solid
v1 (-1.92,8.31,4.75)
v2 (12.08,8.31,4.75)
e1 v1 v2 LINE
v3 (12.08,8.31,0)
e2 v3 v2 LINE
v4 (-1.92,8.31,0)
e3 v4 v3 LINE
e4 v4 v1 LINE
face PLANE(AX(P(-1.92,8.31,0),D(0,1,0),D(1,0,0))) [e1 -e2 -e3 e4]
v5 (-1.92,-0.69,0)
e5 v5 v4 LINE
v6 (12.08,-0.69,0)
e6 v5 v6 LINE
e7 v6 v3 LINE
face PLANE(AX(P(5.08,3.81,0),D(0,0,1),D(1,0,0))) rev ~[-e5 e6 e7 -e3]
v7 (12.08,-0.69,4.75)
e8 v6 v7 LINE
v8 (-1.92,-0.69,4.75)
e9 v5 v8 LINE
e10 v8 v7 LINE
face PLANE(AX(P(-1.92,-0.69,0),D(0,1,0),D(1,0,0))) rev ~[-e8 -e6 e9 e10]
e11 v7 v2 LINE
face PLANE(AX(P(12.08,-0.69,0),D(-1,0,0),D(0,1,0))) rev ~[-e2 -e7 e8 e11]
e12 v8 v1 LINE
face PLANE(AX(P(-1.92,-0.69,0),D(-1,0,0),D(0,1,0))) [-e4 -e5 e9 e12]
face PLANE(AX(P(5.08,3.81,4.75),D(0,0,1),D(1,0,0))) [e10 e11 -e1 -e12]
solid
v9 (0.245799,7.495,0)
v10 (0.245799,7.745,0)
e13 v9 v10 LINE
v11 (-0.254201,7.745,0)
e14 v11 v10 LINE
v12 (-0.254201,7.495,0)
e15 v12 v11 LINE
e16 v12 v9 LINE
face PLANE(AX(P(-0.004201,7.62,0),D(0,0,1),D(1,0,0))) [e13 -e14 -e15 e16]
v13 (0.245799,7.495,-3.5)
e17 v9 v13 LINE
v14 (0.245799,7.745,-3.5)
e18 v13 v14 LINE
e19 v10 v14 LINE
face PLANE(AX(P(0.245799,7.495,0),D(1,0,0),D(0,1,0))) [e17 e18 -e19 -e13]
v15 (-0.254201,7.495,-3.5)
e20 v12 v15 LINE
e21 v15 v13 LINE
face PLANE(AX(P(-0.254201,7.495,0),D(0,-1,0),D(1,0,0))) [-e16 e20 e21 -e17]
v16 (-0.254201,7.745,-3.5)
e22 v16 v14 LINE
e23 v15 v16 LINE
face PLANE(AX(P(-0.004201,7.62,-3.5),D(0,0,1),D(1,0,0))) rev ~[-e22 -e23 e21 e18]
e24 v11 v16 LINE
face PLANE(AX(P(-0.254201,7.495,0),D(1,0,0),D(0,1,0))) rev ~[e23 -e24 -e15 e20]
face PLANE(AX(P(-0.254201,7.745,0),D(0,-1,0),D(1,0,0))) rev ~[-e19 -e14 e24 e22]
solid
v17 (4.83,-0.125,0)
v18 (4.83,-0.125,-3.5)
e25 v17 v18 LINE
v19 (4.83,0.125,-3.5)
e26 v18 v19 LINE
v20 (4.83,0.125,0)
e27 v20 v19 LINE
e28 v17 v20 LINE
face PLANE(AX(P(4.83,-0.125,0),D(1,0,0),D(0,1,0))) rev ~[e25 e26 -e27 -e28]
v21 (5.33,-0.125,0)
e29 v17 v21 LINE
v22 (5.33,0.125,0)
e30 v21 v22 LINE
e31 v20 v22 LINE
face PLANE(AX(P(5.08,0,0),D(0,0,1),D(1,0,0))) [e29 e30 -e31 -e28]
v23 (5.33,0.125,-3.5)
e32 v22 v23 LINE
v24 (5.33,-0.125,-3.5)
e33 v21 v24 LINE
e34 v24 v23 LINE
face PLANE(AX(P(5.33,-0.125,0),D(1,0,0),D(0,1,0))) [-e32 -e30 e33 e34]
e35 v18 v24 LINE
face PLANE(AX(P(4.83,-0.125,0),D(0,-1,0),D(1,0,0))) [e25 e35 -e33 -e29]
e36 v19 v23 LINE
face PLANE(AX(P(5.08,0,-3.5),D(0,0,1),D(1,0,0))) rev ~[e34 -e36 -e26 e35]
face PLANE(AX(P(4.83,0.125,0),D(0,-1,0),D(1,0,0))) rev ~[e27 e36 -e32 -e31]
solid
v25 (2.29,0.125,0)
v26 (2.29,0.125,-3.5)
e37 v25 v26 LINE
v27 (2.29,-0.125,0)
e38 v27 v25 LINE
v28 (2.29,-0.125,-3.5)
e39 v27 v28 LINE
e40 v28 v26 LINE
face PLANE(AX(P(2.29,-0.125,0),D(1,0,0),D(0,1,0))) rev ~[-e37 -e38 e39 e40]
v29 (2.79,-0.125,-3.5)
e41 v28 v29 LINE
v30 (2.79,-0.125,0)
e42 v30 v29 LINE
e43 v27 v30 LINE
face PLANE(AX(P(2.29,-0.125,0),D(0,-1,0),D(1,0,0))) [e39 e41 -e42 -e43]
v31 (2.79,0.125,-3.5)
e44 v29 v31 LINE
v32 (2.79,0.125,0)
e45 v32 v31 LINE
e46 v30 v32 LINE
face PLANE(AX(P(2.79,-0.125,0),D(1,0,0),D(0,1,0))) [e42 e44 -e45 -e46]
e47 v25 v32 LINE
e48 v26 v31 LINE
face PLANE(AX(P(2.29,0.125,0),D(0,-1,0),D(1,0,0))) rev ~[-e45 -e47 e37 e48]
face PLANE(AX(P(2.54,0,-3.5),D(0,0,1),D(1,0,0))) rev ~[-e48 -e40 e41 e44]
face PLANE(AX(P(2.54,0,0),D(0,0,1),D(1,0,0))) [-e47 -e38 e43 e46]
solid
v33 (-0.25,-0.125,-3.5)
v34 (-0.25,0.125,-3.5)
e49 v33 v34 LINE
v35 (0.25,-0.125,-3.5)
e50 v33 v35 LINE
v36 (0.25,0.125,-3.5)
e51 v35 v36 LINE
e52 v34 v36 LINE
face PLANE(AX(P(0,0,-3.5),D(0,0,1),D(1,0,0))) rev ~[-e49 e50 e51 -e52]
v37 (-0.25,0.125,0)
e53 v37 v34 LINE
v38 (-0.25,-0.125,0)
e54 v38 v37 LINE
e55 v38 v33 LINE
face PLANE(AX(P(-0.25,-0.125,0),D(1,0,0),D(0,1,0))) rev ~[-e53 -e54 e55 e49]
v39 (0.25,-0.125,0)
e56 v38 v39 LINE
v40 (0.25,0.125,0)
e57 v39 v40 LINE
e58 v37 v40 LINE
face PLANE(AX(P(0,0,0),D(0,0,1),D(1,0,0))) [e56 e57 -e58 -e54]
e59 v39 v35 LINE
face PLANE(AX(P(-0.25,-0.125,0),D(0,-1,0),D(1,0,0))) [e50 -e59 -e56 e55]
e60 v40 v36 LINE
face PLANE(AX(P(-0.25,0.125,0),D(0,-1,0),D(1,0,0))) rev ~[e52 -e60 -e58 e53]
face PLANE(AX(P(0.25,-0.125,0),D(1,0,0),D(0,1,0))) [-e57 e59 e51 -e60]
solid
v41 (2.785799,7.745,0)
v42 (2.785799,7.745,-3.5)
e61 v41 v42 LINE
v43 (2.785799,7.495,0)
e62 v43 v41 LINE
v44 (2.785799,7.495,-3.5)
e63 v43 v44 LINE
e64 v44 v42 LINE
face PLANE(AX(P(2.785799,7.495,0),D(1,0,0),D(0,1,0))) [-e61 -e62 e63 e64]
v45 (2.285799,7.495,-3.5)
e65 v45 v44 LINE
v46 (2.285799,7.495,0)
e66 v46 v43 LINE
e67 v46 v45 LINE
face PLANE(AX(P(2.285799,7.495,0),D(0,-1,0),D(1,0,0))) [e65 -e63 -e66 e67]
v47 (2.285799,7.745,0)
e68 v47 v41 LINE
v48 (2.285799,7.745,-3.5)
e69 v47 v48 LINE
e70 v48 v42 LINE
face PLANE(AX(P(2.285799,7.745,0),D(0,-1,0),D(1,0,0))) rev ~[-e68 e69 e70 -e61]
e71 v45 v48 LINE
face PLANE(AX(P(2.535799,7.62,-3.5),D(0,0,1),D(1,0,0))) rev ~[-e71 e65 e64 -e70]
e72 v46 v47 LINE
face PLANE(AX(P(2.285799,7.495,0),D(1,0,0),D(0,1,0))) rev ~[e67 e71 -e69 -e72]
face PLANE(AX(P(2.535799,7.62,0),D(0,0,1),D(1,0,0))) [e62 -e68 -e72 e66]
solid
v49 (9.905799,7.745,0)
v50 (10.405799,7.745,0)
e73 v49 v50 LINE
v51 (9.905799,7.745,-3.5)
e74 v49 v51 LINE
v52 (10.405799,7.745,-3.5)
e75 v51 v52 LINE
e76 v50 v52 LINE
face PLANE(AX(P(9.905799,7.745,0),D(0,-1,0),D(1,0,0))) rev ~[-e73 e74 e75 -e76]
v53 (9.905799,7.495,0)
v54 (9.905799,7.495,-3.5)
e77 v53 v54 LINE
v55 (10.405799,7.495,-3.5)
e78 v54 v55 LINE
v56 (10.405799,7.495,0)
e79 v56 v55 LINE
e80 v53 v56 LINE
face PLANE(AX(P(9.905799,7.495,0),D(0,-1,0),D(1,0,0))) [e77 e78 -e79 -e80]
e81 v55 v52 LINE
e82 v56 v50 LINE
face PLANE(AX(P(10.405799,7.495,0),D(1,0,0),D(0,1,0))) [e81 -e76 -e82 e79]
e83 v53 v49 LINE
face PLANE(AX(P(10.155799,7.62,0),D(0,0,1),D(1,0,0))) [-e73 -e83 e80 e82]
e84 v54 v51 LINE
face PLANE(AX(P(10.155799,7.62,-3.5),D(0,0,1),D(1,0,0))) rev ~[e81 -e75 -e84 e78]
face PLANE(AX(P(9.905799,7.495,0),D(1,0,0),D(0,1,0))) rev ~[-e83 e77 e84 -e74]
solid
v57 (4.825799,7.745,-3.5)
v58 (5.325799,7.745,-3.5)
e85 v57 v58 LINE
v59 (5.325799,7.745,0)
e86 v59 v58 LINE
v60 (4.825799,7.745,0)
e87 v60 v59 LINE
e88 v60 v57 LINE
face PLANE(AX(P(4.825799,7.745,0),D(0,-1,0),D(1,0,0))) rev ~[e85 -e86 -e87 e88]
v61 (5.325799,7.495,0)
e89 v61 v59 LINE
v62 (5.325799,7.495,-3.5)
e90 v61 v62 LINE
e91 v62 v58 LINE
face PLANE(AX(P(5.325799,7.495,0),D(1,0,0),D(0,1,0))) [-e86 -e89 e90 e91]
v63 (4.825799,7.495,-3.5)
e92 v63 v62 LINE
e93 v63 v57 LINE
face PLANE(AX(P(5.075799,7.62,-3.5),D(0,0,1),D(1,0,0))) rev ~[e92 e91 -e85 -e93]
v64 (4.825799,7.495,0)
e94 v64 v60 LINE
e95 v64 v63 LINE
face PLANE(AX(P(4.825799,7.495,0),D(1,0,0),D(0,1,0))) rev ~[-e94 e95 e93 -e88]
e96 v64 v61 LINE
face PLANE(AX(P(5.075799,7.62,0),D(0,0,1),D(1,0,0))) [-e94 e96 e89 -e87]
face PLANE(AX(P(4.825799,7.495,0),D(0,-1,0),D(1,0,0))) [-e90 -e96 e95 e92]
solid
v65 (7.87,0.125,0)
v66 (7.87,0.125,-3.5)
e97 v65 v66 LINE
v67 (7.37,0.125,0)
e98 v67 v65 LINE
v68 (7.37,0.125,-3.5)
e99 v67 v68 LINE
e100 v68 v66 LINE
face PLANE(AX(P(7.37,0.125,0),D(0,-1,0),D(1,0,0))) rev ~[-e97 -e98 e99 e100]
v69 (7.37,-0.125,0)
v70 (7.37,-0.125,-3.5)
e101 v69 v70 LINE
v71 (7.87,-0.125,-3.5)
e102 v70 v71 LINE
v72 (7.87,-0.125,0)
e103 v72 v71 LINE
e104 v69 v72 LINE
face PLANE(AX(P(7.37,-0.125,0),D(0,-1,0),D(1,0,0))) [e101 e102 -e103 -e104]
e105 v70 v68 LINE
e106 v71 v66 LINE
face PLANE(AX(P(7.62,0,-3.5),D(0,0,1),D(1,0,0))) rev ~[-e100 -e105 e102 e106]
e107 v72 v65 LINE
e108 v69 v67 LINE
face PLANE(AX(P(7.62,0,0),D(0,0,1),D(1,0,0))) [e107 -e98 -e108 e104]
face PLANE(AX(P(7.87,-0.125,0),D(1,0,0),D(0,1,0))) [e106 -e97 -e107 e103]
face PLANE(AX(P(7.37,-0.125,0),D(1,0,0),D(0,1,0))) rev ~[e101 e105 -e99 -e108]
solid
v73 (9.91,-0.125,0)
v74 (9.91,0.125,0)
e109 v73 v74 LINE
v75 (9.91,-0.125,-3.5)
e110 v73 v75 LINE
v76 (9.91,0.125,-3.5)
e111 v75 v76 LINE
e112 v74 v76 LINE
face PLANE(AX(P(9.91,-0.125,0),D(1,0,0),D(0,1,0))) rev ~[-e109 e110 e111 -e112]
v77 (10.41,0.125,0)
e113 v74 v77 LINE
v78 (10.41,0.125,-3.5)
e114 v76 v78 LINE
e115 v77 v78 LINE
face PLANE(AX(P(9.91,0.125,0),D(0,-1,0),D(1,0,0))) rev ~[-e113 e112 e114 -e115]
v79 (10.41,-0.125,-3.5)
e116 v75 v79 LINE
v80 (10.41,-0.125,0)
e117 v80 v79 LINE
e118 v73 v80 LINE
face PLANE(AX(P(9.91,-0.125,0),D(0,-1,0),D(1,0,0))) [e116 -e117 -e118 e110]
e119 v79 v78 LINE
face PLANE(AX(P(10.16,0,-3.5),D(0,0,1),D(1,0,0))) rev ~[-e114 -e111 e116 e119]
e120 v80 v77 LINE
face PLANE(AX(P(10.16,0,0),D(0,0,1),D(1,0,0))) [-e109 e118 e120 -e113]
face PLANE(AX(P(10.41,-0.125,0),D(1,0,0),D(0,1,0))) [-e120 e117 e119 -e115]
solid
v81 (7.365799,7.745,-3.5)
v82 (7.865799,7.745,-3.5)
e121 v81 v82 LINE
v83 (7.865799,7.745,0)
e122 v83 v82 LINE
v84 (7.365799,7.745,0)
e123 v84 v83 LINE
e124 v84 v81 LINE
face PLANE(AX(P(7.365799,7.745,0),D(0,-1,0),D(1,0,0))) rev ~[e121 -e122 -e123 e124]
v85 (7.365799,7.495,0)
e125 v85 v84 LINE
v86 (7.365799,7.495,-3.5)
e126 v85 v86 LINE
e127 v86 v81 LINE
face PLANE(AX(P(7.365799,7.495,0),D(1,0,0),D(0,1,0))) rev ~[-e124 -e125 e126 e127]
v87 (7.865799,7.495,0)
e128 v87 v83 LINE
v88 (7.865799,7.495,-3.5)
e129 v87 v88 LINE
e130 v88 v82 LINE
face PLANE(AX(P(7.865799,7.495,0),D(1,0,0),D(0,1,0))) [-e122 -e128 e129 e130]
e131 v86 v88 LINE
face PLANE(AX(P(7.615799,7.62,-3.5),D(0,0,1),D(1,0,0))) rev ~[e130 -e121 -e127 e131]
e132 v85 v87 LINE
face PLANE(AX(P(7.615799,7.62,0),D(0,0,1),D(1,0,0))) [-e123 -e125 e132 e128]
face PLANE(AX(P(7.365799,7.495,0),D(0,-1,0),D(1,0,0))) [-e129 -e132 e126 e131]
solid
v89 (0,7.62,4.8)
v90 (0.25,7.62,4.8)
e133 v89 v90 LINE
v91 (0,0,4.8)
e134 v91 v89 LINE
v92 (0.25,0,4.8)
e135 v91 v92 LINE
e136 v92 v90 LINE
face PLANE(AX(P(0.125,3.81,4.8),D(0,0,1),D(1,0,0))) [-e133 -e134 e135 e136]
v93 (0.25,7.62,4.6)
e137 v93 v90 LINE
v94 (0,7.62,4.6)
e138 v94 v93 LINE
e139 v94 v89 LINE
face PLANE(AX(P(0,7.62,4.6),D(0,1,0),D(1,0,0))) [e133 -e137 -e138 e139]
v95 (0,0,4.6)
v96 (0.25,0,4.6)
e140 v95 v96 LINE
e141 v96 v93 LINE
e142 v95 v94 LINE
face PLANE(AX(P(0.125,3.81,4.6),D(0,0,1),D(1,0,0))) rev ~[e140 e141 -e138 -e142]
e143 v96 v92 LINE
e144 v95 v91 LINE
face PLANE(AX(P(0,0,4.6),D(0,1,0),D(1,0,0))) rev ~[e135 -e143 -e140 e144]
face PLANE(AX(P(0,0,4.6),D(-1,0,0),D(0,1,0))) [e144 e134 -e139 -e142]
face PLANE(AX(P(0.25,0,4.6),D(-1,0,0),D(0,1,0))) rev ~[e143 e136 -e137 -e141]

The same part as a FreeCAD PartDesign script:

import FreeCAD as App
import Part
import Sketcher
Q = App.Units.Quantity


def add_polygon(sketch, points):
    """Adds a closed chain of lines whose ends are joined by coincident constraints."""
    first, n = sketch.GeometryCount, len(points)
    for a, b in zip(points, points[1:] + points[:1]):
        sketch.addGeometry(Part.LineSegment(App.Vector(*a, 0), App.Vector(*b, 0)), False)
    for i in range(n):
        sketch.addConstraint(Sketcher.Constraint("Coincident", first + i, 2, first + (i + 1) % n, 1))

doc = App.newDocument("Part")
body = doc.addObject("PartDesign::Body", "Body")

sketch1 = body.newObject("Sketcher::SketchObject", "Sketch")
sketch1.AttachmentSupport = (doc.getObject("XY_Plane"), [""])
sketch1.MapMode = "FlatFace"
add_polygon(sketch1, [(-2, 8), (-2, -1), (12, -1), (12, 8)])
sketch1.addConstraint([
    Sketcher.Constraint("Vertical", 0),
    Sketcher.Constraint("Horizontal", 1),
    Sketcher.Constraint("Vertical", 2),
    Sketcher.Constraint("Horizontal", 3),
    Sketcher.Constraint("DistanceX", 1, 1, 1, 2, Q("14 mm")),
    Sketcher.Constraint("DistanceY", 0, 2, 0, 1, Q("9 mm")),
    Sketcher.Constraint("DistanceX", 0, 2, -1, 1, Q("1.92 mm")),
    Sketcher.Constraint("DistanceY", 0, 2, -1, 1, Q("0.69 mm")),
])
pad1 = body.newObject("PartDesign::Pad", "Pad")
pad1.Profile = sketch1
pad1.Length = 4.75
body2 = doc.addObject("PartDesign::Body", "Body001")

sketch2 = body2.newObject("Sketcher::SketchObject", "Sketch001")
sketch2.AttachmentSupport = (doc.getObject("XY_Plane001"), [""])
sketch2.MapMode = "FlatFace"
sketch2.AttachmentOffset = App.Placement(App.Vector(0, 0, 4.6), App.Rotation())
add_polygon(sketch2, [(0, 7.62), (0, 0), (0.25, 0), (0.25, 7.62)])
sketch2.addConstraint([
    Sketcher.Constraint("Vertical", 0),
    Sketcher.Constraint("Horizontal", 1),
    Sketcher.Constraint("Vertical", 2),
    Sketcher.Constraint("Horizontal", 3),
    Sketcher.Constraint("Coincident", 0, 2, -1, 1),
    Sketcher.Constraint("DistanceX", 1, 1, 1, 2, Q("0.25 mm")),
    Sketcher.Constraint("DistanceY", 0, 2, 0, 1, Q("7.62 mm")),
])
pad2 = body2.newObject("PartDesign::Pad", "Pad001")
pad2.Profile = sketch2
pad2.Length = 0.2
body3 = doc.addObject("PartDesign::Body", "Body002")
body3.AllowCompound = True

sketch3 = body3.newObject("Sketcher::SketchObject", "Sketch002")
sketch3.AttachmentSupport = (doc.getObject("XY_Plane002"), [""])
sketch3.MapMode = "FlatFace"
add_polygon(sketch3, [(-0.25, 0.12), (-0.25, -0.12), (0.25, -0.12), (0.25, 0.12)])
add_polygon(sketch3, [(2.29, 0.12), (2.29, -0.12), (2.79, -0.12), (2.79, 0.12)])
add_polygon(sketch3, [(4.83, 0.12), (4.83, -0.12), (5.33, -0.12), (5.33, 0.12)])
add_polygon(sketch3, [(7.37, 0.12), (7.37, -0.12), (7.87, -0.12), (7.87, 0.12)])
add_polygon(sketch3, [(9.91, 0.12), (9.91, -0.12), (10.41, -0.12), (10.41, 0.12)])
add_polygon(sketch3, [(-0.25, 7.75), (-0.25, 7.5), (0.25, 7.5), (0.25, 7.75)])
add_polygon(sketch3, [(2.29, 7.75), (2.29, 7.5), (2.79, 7.5), (2.79, 7.75)])
add_polygon(sketch3, [(4.83, 7.75), (4.83, 7.5), (5.33, 7.5), (5.33, 7.75)])
add_polygon(sketch3, [(7.37, 7.75), (7.37, 7.5), (7.87, 7.5), (7.87, 7.75)])
add_polygon(sketch3, [(9.91, 7.75), (9.91, 7.5), (10.41, 7.5), (10.41, 7.75)])
sketch3.addConstraint([
    Sketcher.Constraint("Vertical", 0),
    Sketcher.Constraint("Horizontal", 1),
    Sketcher.Constraint("Vertical", 2),
    Sketcher.Constraint("Horizontal", 3),
    Sketcher.Constraint("Vertical", 4),
    Sketcher.Constraint("Horizontal", 5),
    Sketcher.Constraint("Vertical", 6),
    Sketcher.Constraint("Horizontal", 7),
    Sketcher.Constraint("Vertical", 8),
    Sketcher.Constraint("Horizontal", 9),
    Sketcher.Constraint("Vertical", 10),
    Sketcher.Constraint("Horizontal", 11),
    Sketcher.Constraint("Vertical", 12),
    Sketcher.Constraint("Horizontal", 13),
    Sketcher.Constraint("Vertical", 14),
    Sketcher.Constraint("Horizontal", 15),
    Sketcher.Constraint("Vertical", 16),
    Sketcher.Constraint("Horizontal", 17),
    Sketcher.Constraint("Vertical", 18),
    Sketcher.Constraint("Horizontal", 19),
    Sketcher.Constraint("Vertical", 20),
    Sketcher.Constraint("Horizontal", 21),
    Sketcher.Constraint("Vertical", 22),
    Sketcher.Constraint("Horizontal", 23),
    Sketcher.Constraint("Vertical", 24),
    Sketcher.Constraint("Horizontal", 25),
    Sketcher.Constraint("Vertical", 26),
    Sketcher.Constraint("Horizontal", 27),
    Sketcher.Constraint("Vertical", 28),
    Sketcher.Constraint("Horizontal", 29),
    Sketcher.Constraint("Vertical", 30),
    Sketcher.Constraint("Horizontal", 31),
    Sketcher.Constraint("Vertical", 32),
    Sketcher.Constraint("Horizontal", 33),
    Sketcher.Constraint("Vertical", 34),
    Sketcher.Constraint("Horizontal", 35),
    Sketcher.Constraint("Vertical", 36),
    Sketcher.Constraint("Horizontal", 37),
    Sketcher.Constraint("Vertical", 38),
    Sketcher.Constraint("Horizontal", 39),
    Sketcher.Constraint("Symmetric", 0, 2, 2, 2, -1, 1),
    Sketcher.Constraint("Horizontal", 1, 2, 4, 2),
    Sketcher.Constraint("Horizontal", 3, 2, 6, 2),
    Sketcher.Constraint("Horizontal", 5, 2, 8, 2),
    Sketcher.Constraint("Horizontal", 7, 2, 10, 2),
    Sketcher.Constraint("Horizontal", 9, 2, 12, 2),
    Sketcher.Constraint("Horizontal", 11, 2, 14, 2),
    Sketcher.Constraint("Horizontal", 13, 2, 16, 2),
    Sketcher.Constraint("Horizontal", 15, 2, 18, 2),
    Sketcher.Constraint("Horizontal", 21, 2, 24, 2),
    Sketcher.Constraint("Horizontal", 23, 2, 26, 2),
    Sketcher.Constraint("Horizontal", 25, 2, 28, 2),
    Sketcher.Constraint("Horizontal", 27, 2, 30, 2),
    Sketcher.Constraint("Horizontal", 29, 2, 32, 2),
    Sketcher.Constraint("Horizontal", 31, 2, 34, 2),
    Sketcher.Constraint("Horizontal", 33, 2, 36, 2),
    Sketcher.Constraint("Horizontal", 35, 2, 38, 2),
    Sketcher.Constraint("Equal", 3, 5),
    Sketcher.Constraint("Equal", 7, 9),
    Sketcher.Constraint("Equal", 11, 13),
    Sketcher.Constraint("Equal", 15, 17),
    Sketcher.Constraint("Equal", 19, 21),
    Sketcher.Constraint("Equal", 23, 25),
    Sketcher.Constraint("Equal", 27, 29),
    Sketcher.Constraint("Equal", 31, 33),
    Sketcher.Constraint("Equal", 35, 37),
    Sketcher.Constraint("Equal", 18, 20),
    Sketcher.Constraint("DistanceX", 1, 1, 1, 2, Q("0.5 mm")),
    Sketcher.Constraint("DistanceY", 0, 2, 0, 1, Q("0.25 mm")),
    Sketcher.Constraint("DistanceX", -1, 1, 4, 2, Q("2.29 mm")),
    Sketcher.Constraint("DistanceX", -1, 1, 8, 2, Q("4.83 mm")),
    Sketcher.Constraint("DistanceX", -1, 1, 12, 2, Q("7.37 mm")),
    Sketcher.Constraint("DistanceX", -1, 1, 16, 2, Q("9.91 mm")),
    Sketcher.Constraint("DistanceY", 3, 2, 20, 2, Q("7.37 mm")),
    Sketcher.Constraint("DistanceX", 21, 2, 24, 2, Q("2.04 mm")),
    Sketcher.Constraint("DistanceX", 25, 2, 28, 2, Q("2.04 mm")),
    Sketcher.Constraint("DistanceX", 29, 2, 32, 2, Q("2.04 mm")),
    Sketcher.Constraint("DistanceX", 33, 2, 36, 2, Q("2.04 mm")),
    Sketcher.Constraint("DistanceX", 20, 2, -1, 1, Q("0.254201 mm")),
])
pad3 = body3.newObject("PartDesign::Pad", "Pad002")
pad3.Profile = sketch3
pad3.Length = 3.5
pad3.Reversed = True

doc.recompute()
